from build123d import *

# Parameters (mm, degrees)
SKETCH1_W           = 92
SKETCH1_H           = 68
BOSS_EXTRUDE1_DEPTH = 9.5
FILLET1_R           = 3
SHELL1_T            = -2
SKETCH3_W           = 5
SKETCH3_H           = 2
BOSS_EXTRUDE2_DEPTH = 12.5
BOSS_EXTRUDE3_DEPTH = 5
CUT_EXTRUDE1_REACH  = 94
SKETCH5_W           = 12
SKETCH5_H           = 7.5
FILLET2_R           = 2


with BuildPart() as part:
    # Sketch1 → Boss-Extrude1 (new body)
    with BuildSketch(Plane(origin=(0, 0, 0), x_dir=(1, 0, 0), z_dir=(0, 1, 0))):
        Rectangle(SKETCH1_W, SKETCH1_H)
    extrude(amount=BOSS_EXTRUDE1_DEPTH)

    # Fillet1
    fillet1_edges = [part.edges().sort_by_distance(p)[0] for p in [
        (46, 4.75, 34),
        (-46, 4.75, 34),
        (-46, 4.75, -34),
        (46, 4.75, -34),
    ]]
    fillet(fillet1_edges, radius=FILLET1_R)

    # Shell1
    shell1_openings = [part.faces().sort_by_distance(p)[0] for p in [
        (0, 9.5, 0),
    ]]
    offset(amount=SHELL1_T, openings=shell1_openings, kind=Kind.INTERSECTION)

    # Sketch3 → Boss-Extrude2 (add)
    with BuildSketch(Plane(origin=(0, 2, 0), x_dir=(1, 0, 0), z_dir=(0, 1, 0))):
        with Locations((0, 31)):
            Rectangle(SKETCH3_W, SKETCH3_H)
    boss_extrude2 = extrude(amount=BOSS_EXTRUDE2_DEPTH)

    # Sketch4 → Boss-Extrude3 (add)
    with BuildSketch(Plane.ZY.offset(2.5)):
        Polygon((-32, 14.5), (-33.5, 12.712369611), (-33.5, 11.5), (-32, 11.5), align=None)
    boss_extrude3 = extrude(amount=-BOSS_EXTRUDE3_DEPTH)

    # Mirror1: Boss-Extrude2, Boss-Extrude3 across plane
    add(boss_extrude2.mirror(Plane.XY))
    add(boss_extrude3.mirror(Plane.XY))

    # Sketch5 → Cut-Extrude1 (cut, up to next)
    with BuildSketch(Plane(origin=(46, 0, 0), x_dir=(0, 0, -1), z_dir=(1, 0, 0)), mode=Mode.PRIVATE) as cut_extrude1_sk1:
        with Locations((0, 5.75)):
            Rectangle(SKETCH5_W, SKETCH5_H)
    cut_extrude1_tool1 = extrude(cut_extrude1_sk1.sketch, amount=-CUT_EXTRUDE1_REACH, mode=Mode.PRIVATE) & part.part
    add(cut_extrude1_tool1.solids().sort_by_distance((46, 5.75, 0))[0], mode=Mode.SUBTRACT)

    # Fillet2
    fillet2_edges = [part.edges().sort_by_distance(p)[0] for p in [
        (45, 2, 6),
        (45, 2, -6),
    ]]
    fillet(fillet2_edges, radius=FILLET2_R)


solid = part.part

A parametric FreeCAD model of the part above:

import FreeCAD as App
import Part
import Sketcher
Q = App.Units.Quantity


def edges_at(feature, points):
    """Names of the edges that pass closest to the given points."""
    edges = feature.Shape.Edges
    near = lambda p: min(range(len(edges)), key=lambda i: edges[i].distToShape(Part.Vertex(*p))[0])
    return sorted({f"Edge{near(p) + 1}" for p in points})


def faces_at(feature, points):
    """Names of the faces that lie closest to the given points."""
    faces = feature.Shape.Faces
    near = lambda p: min(range(len(faces)), key=lambda i: faces[i].distToShape(Part.Vertex(*p))[0])
    return sorted({f"Face{near(p) + 1}" for p in points})

doc = App.newDocument("Part")
body = doc.addObject("PartDesign::Body", "Body")

# Sketch on XZ plane
sketch1 = body.newObject("Sketcher::SketchObject", "Sketch")
sketch1.AttachmentSupport = (doc.getObject("XZ_Plane"), [""])
sketch1.MapMode = "FlatFace"
sketch1.addGeometry([
    Part.LineSegment(App.Vector(-46, -34, 0), App.Vector(-46, 34, 0)),
    Part.LineSegment(App.Vector(-46, 34, 0), App.Vector(46, 34, 0)),
    Part.LineSegment(App.Vector(46, 34, 0), App.Vector(46, -34, 0)),
    Part.LineSegment(App.Vector(46, -34, 0), App.Vector(-46, -34, 0)),
], False)
sketch1.addConstraint([
    Sketcher.Constraint("Coincident", 0, 2, 1, 1),
    Sketcher.Constraint("Coincident", 1, 2, 2, 1),
    Sketcher.Constraint("Coincident", 2, 2, 3, 1),
    Sketcher.Constraint("Coincident", 3, 2, 0, 1),
    Sketcher.Constraint("Vertical", 0),
    Sketcher.Constraint("Horizontal", 1),
    Sketcher.Constraint("Vertical", 2),
    Sketcher.Constraint("Horizontal", 3),
    Sketcher.Constraint("Symmetric", 0, 2, 2, 2, -1, 1),
    Sketcher.Constraint("DistanceX", 1, 1, 1, 2, Q("92 mm")),
    Sketcher.Constraint("DistanceY", 0, 1, 0, 2, Q("68 mm")),
])
pad1 = body.newObject("PartDesign::Pad", "Pad")
pad1.Profile = sketch1
pad1.Length = 9.5
pad1.Reversed = True
doc.recompute()

fillet = body.newObject("PartDesign::Fillet", "Fillet")
fillet.Base = (pad1, edges_at(pad1, [
    (46, 4.75, 34),
    (-46, 4.75, 34),
    (-46, 4.75, -34),
    (46, 4.75, -34),
]))
fillet.Radius = 3
doc.recompute()

thickness = body.newObject("PartDesign::Thickness", "Thickness")
thickness.Base = (fillet, faces_at(fillet, [(0, 9.5, 0)]))
thickness.Value = 2
thickness.Reversed = True
thickness.Join = "Intersection"

# Sketch on XZ plane
sketch2 = body.newObject("Sketcher::SketchObject", "Sketch001")
sketch2.AttachmentSupport = (doc.getObject("XZ_Plane"), [""])
sketch2.MapMode = "FlatFace"
sketch2.AttachmentOffset = App.Placement(App.Vector(0, 0, -2), App.Rotation())
sketch2.addGeometry([
    Part.LineSegment(App.Vector(-2.5, -32, 0), App.Vector(-2.5, -30, 0)),
    Part.LineSegment(App.Vector(-2.5, -30, 0), App.Vector(2.5, -30, 0)),
    Part.LineSegment(App.Vector(2.5, -30, 0), App.Vector(2.5, -32, 0)),
    Part.LineSegment(App.Vector(2.5, -32, 0), App.Vector(-2.5, -32, 0)),
], False)
sketch2.addConstraint([
    Sketcher.Constraint("Coincident", 0, 2, 1, 1),
    Sketcher.Constraint("Coincident", 1, 2, 2, 1),
    Sketcher.Constraint("Coincident", 2, 2, 3, 1),
    Sketcher.Constraint("Coincident", 3, 2, 0, 1),
    Sketcher.Constraint("Vertical", 0),
    Sketcher.Constraint("Horizontal", 1),
    Sketcher.Constraint("Vertical", 2),
    Sketcher.Constraint("Horizontal", 3),
    Sketcher.Constraint("DistanceX", 1, 1, 1, 2, Q("5 mm")),
    Sketcher.Constraint("DistanceY", 0, 1, 0, 2, Q("2 mm")),
    Sketcher.Constraint("DistanceY", 0, 2, -1, 1, Q("30 mm")),
    Sketcher.Constraint("DistanceX", 0, 2, -1, 1, Q("2.5 mm")),
])
pad2 = body.newObject("PartDesign::Pad", "Pad001")
pad2.Profile = sketch2
pad2.Length = 12.5
pad2.Reversed = True

# Sketch on YZ plane
sketch3 = body.newObject("Sketcher::SketchObject", "Sketch002")
sketch3.AttachmentSupport = (doc.getObject("YZ_Plane"), [""])
sketch3.MapMode = "FlatFace"
sketch3.AttachmentOffset = App.Placement(App.Vector(0, 0, -2.5), App.Rotation())
sketch3.addGeometry([
    Part.LineSegment(App.Vector(14.5, -32, 0), App.Vector(12.7, -33.5, 0)),
    Part.LineSegment(App.Vector(12.7, -33.5, 0), App.Vector(11.5, -33.5, 0)),
    Part.LineSegment(App.Vector(11.5, -33.5, 0), App.Vector(11.5, -32, 0)),
    Part.LineSegment(App.Vector(11.5, -32, 0), App.Vector(14.5, -32, 0)),
], False)
sketch3.addConstraint([
    Sketcher.Constraint("Coincident", 0, 2, 1, 1),
    Sketcher.Constraint("Coincident", 1, 2, 2, 1),
    Sketcher.Constraint("Coincident", 2, 2, 3, 1),
    Sketcher.Constraint("Coincident", 3, 2, 0, 1),
    Sketcher.Constraint("Horizontal", 1),
    Sketcher.Constraint("Vertical", 2),
    Sketcher.Constraint("Horizontal", 3),
    Sketcher.Constraint("DistanceX", 3, 1, 3, 2, Q("3 mm")),
    Sketcher.Constraint("Angle", 0, Q("-140 deg")),
    Sketcher.Constraint("DistanceY", 2, 1, 2, 2, Q("1.5 mm")),
    Sketcher.Constraint("DistanceY", 2, 2, -1, 1, Q("32 mm")),
    Sketcher.Constraint("DistanceX", -1, 1, 1, 2, Q("11.5 mm")),
])
pad3 = body.newObject("PartDesign::Pad", "Pad002")
pad3.Profile = sketch3
pad3.Length = 5
doc.recompute()

mirrored = body.newObject("PartDesign::Mirrored", "Mirrored")
mirrored.Originals = [pad2, pad3]
mirrored.MirrorPlane = (doc.getObject("XY_Plane"), [""])
body.Tip = mirrored

# Sketch on YZ plane
sketch4 = body.newObject("Sketcher::SketchObject", "Sketch003")
sketch4.AttachmentSupport = (doc.getObject("YZ_Plane"), [""])
sketch4.MapMode = "FlatFace"
sketch4.AttachmentOffset = App.Placement(App.Vector(0, 0, 46), App.Rotation())
sketch4.addGeometry([
    Part.LineSegment(App.Vector(10, 6, 0), App.Vector(2, 6, 0)),
    Part.LineSegment(App.Vector(2, 6, 0), App.Vector(2, -6, 0)),
    Part.LineSegment(App.Vector(2, -6, 0), App.Vector(10, -6, 0)),
    Part.LineSegment(App.Vector(10, -6, 0), App.Vector(10, 6, 0)),
], False)
sketch4.addConstraint([
    Sketcher.Constraint("Coincident", 0, 2, 1, 1),
    Sketcher.Constraint("Coincident", 1, 2, 2, 1),
    Sketcher.Constraint("Coincident", 2, 2, 3, 1),
    Sketcher.Constraint("Coincident", 3, 2, 0, 1),
    Sketcher.Constraint("Horizontal", 0),
    Sketcher.Constraint("Vertical", 1),
    Sketcher.Constraint("Horizontal", 2),
    Sketcher.Constraint("Vertical", 3),
    Sketcher.Constraint("DistanceY", 1, 2, 1, 1, Q("12 mm")),
    Sketcher.Constraint("DistanceX", 0, 2, 0, 1, Q("7.5 mm")),
    Sketcher.Constraint("DistanceX", -1, 1, 0, 2, Q("2 mm")),
    Sketcher.Constraint("DistanceY", -1, 1, 0, 2, Q("6 mm")),
])
pocket1 = body.newObject("PartDesign::Pocket", "Pocket")
pocket1.Profile = sketch4
pocket1.Type = "UpToFirst"
doc.recompute()

fillet2 = body.newObject("PartDesign::Fillet", "Fillet001")
fillet2.Base = (pocket1, edges_at(pocket1, [(45, 2, 6), (45, 2, -6)]))
fillet2.Radius = 2

doc.recompute()
